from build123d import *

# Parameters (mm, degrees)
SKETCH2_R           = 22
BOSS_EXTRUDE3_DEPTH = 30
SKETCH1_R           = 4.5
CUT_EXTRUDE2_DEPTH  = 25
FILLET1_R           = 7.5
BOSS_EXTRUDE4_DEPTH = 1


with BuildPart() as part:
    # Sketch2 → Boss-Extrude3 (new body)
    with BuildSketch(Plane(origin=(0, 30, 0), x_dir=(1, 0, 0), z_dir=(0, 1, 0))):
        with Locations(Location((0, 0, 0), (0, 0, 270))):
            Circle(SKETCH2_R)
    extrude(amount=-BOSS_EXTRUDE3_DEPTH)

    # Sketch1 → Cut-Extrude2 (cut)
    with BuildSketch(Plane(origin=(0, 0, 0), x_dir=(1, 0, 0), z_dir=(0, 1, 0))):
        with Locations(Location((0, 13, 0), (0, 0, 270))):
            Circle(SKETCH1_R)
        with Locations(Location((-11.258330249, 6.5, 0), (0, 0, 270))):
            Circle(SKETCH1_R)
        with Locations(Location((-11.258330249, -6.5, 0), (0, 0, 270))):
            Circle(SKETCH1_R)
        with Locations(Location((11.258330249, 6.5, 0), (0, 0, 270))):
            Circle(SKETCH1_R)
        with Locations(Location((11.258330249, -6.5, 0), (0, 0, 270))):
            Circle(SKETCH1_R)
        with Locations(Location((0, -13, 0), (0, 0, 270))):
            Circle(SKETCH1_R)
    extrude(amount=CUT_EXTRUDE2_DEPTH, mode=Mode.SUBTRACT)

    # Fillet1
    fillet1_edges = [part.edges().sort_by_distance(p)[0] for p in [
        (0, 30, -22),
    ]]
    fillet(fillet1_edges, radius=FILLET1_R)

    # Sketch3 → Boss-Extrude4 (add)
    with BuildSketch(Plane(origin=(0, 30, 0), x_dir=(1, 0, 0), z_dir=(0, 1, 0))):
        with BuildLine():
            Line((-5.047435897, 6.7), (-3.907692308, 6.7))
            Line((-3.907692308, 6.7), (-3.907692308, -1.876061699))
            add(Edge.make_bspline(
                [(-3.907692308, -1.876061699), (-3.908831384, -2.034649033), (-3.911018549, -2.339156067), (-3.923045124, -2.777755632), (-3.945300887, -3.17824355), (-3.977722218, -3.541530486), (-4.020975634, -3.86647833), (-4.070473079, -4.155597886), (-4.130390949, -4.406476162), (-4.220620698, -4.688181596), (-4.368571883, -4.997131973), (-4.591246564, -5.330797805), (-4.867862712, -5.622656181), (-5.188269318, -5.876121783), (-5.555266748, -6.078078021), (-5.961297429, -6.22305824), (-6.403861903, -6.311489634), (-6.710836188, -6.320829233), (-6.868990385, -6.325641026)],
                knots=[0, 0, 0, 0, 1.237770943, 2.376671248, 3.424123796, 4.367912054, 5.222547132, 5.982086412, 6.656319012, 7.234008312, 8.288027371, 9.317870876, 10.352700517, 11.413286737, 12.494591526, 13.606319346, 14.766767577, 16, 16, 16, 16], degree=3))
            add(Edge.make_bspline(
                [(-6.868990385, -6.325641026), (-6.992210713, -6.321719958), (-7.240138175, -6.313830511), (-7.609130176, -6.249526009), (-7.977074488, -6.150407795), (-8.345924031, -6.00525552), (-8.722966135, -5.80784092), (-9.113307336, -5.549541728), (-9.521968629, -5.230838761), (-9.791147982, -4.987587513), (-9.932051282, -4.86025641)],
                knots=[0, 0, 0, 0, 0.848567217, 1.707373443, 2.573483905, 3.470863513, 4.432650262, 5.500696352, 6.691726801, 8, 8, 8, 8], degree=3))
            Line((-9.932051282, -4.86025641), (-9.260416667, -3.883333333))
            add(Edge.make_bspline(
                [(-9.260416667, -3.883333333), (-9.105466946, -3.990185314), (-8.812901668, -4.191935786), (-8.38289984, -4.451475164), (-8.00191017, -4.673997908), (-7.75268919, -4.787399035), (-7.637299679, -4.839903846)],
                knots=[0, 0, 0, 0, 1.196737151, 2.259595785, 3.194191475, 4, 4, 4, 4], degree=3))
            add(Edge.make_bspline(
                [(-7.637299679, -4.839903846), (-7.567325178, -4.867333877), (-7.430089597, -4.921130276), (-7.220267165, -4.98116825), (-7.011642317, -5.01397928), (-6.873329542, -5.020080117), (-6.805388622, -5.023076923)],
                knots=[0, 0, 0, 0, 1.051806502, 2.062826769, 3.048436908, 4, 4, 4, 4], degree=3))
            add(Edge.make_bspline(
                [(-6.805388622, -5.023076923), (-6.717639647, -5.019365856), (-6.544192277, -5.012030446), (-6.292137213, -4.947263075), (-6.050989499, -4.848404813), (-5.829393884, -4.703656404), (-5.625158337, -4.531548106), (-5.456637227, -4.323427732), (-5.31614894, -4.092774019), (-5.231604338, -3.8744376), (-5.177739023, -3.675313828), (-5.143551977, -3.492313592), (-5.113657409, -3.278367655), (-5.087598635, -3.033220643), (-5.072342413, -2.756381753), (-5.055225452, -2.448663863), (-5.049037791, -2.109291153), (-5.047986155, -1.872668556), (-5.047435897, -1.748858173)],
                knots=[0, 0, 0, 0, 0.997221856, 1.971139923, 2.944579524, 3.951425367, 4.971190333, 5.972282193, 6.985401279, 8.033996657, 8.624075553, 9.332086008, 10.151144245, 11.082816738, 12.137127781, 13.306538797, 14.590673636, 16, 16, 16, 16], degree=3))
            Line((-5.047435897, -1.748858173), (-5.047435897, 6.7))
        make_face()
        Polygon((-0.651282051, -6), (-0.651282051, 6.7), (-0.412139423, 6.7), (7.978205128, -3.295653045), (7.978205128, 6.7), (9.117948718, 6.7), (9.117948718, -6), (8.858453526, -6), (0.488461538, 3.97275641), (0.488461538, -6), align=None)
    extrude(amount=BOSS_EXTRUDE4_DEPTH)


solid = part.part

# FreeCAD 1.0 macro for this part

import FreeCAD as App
import Part
import Sketcher
from FreeCAD import Vector
Q = App.Units.Quantity


def edges_at(feature, points):
    """Names of the edges that pass closest to the given points."""
    edges = feature.Shape.Edges
    near = lambda p: min(range(len(edges)), key=lambda i: edges[i].distToShape(Part.Vertex(*p))[0])
    return sorted({f"Edge{near(p) + 1}" for p in points})


def add_polygon(sketch, points):
    """Adds a closed chain of lines whose ends are joined by coincident constraints."""
    first, n = sketch.GeometryCount, len(points)
    for a, b in zip(points, points[1:] + points[:1]):
        sketch.addGeometry(Part.LineSegment(App.Vector(*a, 0), App.Vector(*b, 0)), False)
    for i in range(n):
        sketch.addConstraint(Sketcher.Constraint("Coincident", first + i, 2, first + (i + 1) % n, 1))

doc = App.newDocument("Part")
body = doc.addObject("PartDesign::Body", "Body")

# Sketch on XZ plane
sketch1 = doc.addObject("Sketcher::SketchObject", "Sketch")
body.addObject(sketch1)
sketch1.AttachmentSupport = (doc.XZ_Plane, [""])
sketch1.MapMode = "FlatFace"
sketch1.AttachmentOffset = App.Placement(Vector(0, 0, -30), App.Rotation())
sketch1.addGeometry(Part.Circle(Vector(0, 0, 0), Vector(0, 0, 1), 22), False)
sketch1.addConstraint([
    Sketcher.Constraint("Coincident", 0, 3, -1, 1),
    Sketcher.Constraint("Diameter", 0, Q("44 mm")),
])
pad1 = doc.addObject("PartDesign::Pad", "Pad")
body.addObject(pad1)
pad1.Profile = sketch1
pad1.Length = 30

# Sketch on XZ plane
sketch2 = doc.addObject("Sketcher::SketchObject", "Sketch001")
body.addObject(sketch2)
sketch2.AttachmentSupport = (doc.XZ_Plane, [""])
sketch2.MapMode = "FlatFace"
sketch2.addGeometry([
    Part.Circle(Vector(0, -13, 0), Vector(0, 0, 1), 4.5),  # 0
    Part.Circle(Vector(-11.25833, -6.5, 0), Vector(0, 0, 1), 4.5),  # 1
    Part.Circle(Vector(-11.25833, 6.5, 0), Vector(0, 0, 1), 4.5),  # 2
    Part.Circle(Vector(11.25833, -6.5, 0), Vector(0, 0, 1), 4.5),  # 3
    Part.Circle(Vector(11.25833, 6.5, 0), Vector(0, 0, 1), 4.5),  # 4
    Part.Circle(Vector(0, 13, 0), Vector(0, 0, 1), 4.5),  # 5
], False)
sketch2.addConstraint([
    Sketcher.Constraint("Equal", 0, 1),
    Sketcher.Constraint("Equal", 1, 2),
    Sketcher.Constraint("Equal", 2, 3),
    Sketcher.Constraint("Equal", 3, 4),
    Sketcher.Constraint("Equal", 4, 5),
    Sketcher.Constraint("Symmetric", 2, 3, 3, 3, -1, 1),
    Sketcher.Constraint("Symmetric", 1, 3, 4, 3, -1, 1),
    Sketcher.Constraint("Symmetric", 0, 3, 5, 3, -1, 1),
    Sketcher.Constraint("Symmetric", 1, 3, 3, 3, -2),
    Sketcher.Constraint("PointOnObject", 0, 3, -2),
    Sketcher.Constraint("Diameter", 0, Q("9 mm")),
    Sketcher.Constraint("DistanceY", 0, 3, -1, 1, Q("13 mm")),
    Sketcher.Constraint("DistanceY", 1, 3, 2, 3, Q("13 mm")),
    Sketcher.Constraint("DistanceX", 1, 3, -1, 1, Q("11.25833 mm")),
])
pocket1 = doc.addObject("PartDesign::Pocket", "Pocket")
body.addObject(pocket1)
pocket1.Profile = sketch2
pocket1.Length = 25
doc.recompute()

fillet = doc.addObject("PartDesign::Fillet", "Fillet")
body.addObject(fillet)
fillet.Base = (pocket1, edges_at(pocket1, [(0, 30, -22)]))
fillet.Radius = 7.5

# Sketch on XZ plane
sketch3 = doc.addObject("Sketcher::SketchObject", "Sketch002")
body.addObject(sketch3)
sketch3.AttachmentSupport = (doc.XZ_Plane, [""])
sketch3.MapMode = "FlatFace"
sketch3.AttachmentOffset = App.Placement(Vector(0, 0, -30), App.Rotation())
sketch3.addGeometry(Part.LineSegment(Vector(-3.907692, -6.7, 0), Vector(-5.047436, -6.7, 0)), False)  # 0
sketch3.addGeometry(Part.LineSegment(Vector(-5.047436, -6.7, 0), Vector(-5.047436, 1.748858, 0)), False)  # 1
sketch3.addGeometry(Part.BSplineCurve([Vector(-6.805389, 5.023077, 0), Vector(-6.71764, 5.019366, 0), Vector(-6.544192, 5.01203, 0), Vector(-6.292137, 4.947263, 0), Vector(-6.050989, 4.848405, 0), Vector(-5.829394, 4.703656, 0), Vector(-5.625158, 4.531548, 0), Vector(-5.456637, 4.323428, 0), Vector(-5.316149, 4.092774, 0), Vector(-5.231604, 3.874438, 0), Vector(-5.177739, 3.675314, 0), Vector(-5.143552, 3.492314, 0), Vector(-5.113657, 3.278368, 0), Vector(-5.087599, 3.033221, 0), Vector(-5.072342, 2.756382, 0), Vector(-5.055225, 2.448664, 0), Vector(-5.049038, 2.109291, 0), Vector(-5.047986, 1.872669, 0), Vector(-5.047436, 1.748858, 0)], [4, 1, 1, 1, 1, 1, 1, 1, 1, 1, 1, 1, 1, 1, 1, 1, 4], [0, 0.997221856, 1.971139923, 2.944579524, 3.951425367, 4.971190333, 5.972282193, 6.985401279, 8.033996657, 8.624075553, 9.332086008, 10.151144245, 11.082816738, 12.137127781, 13.306538797, 14.590673636, 16], False, 3, [1, 1, 1, 1, 1, 1, 1, 1, 1, 1, 1, 1, 1, 1, 1, 1, 1, 1, 1], False), False)  # 2
sketch3.addGeometry(Part.BSplineCurve([Vector(-7.6373, 4.839904, 0), Vector(-7.567325, 4.867334, 0), Vector(-7.43009, 4.92113, 0), Vector(-7.220267, 4.981168, 0), Vector(-7.011642, 5.013979, 0), Vector(-6.87333, 5.02008, 0), Vector(-6.805389, 5.023077, 0)], [4, 1, 1, 1, 4], [0, 1.051806502, 2.062826769, 3.048436908, 4], False, 3, [1, 1, 1, 1, 1, 1, 1], False), False)  # 3
sketch3.addGeometry(Part.BSplineCurve([Vector(-9.260417, 3.883333, 0), Vector(-9.105467, 3.990185, 0), Vector(-8.812902, 4.191936, 0), Vector(-8.3829, 4.451475, 0), Vector(-8.00191, 4.673998, 0), Vector(-7.752689, 4.787399, 0), Vector(-7.6373, 4.839904, 0)], [4, 1, 1, 1, 4], [0, 1.196737151, 2.259595785, 3.194191475, 4], False, 3, [1, 1, 1, 1, 1, 1, 1], False), False)  # 4
sketch3.addGeometry(Part.LineSegment(Vector(-9.260417, 3.883333, 0), Vector(-9.932051, 4.860256, 0)), False)  # 5
sketch3.addGeometry(Part.BSplineCurve([Vector(-6.86899, 6.325641, 0), Vector(-6.992211, 6.32172, 0), Vector(-7.240138, 6.313831, 0), Vector(-7.60913, 6.249526, 0), Vector(-7.977074, 6.150408, 0), Vector(-8.345924, 6.005256, 0), Vector(-8.722966, 5.807841, 0), Vector(-9.113307, 5.549542, 0), Vector(-9.521969, 5.230839, 0), Vector(-9.791148, 4.987588, 0), Vector(-9.932051, 4.860256, 0)], [4, 1, 1, 1, 1, 1, 1, 1, 4], [0, 0.848567217, 1.707373443, 2.573483905, 3.470863513, 4.432650262, 5.500696352, 6.691726801, 8], False, 3, [1, 1, 1, 1, 1, 1, 1, 1, 1, 1, 1], False), False)  # 6
sketch3.addGeometry(Part.BSplineCurve([Vector(-3.907692, 1.876062, 0), Vector(-3.908831, 2.034649, 0), Vector(-3.911019, 2.339156, 0), Vector(-3.923045, 2.777756, 0), Vector(-3.945301, 3.178244, 0), Vector(-3.977722, 3.54153, 0), Vector(-4.020976, 3.866478, 0), Vector(-4.070473, 4.155598, 0), Vector(-4.130391, 4.406476, 0), Vector(-4.220621, 4.688182, 0), Vector(-4.368572, 4.997132, 0), Vector(-4.591247, 5.330798, 0), Vector(-4.867863, 5.622656, 0), Vector(-5.188269, 5.876122, 0), Vector(-5.555267, 6.078078, 0), Vector(-5.961297, 6.223058, 0), Vector(-6.403862, 6.31149, 0), Vector(-6.710836, 6.320829, 0), Vector(-6.86899, 6.325641, 0)], [4, 1, 1, 1, 1, 1, 1, 1, 1, 1, 1, 1, 1, 1, 1, 1, 4], [0, 1.237770943, 2.376671248, 3.424123796, 4.367912054, 5.222547132, 5.982086412, 6.656319012, 7.234008312, 8.288027371, 9.317870876, 10.352700517, 11.413286737, 12.494591526, 13.606319346, 14.766767577, 16], False, 3, [1, 1, 1, 1, 1, 1, 1, 1, 1, 1, 1, 1, 1, 1, 1, 1, 1, 1, 1], False), False)  # 7
sketch3.addGeometry(Part.LineSegment(Vector(-3.907692, 1.876062, 0), Vector(-3.907692, -6.7, 0)), False)  # 8
add_polygon(sketch3, [(-0.651282, -6.7), (-0.651282, 6), (0.488462, 6), (0.488462, -3.972756), (8.858454, 6), (9.117949, 6), (9.117949, -6.7), (7.978205, -6.7), (7.978205, 3.295653), (-0.412139, -6.7)])  # lines 9-18
sketch3.addConstraint([
    Sketcher.Constraint("Block", 2),
    Sketcher.Constraint("Block", 3),
    Sketcher.Constraint("Block", 4),
    Sketcher.Constraint("Block", 6),
    Sketcher.Constraint("Block", 7),
    Sketcher.Constraint("Coincident", 0, 2, 1, 1),
    Sketcher.Constraint("Coincident", 1, 2, 2, 2),
    Sketcher.Constraint("Coincident", 4, 1, 5, 1),
    Sketcher.Constraint("Coincident", 5, 2, 6, 2),
    Sketcher.Constraint("Coincident", 7, 1, 8, 1),
    Sketcher.Constraint("Coincident", 8, 2, 0, 1),
    Sketcher.Constraint("Horizontal", 0),
    Sketcher.Constraint("Vertical", 1),
    Sketcher.Constraint("Vertical", 8),
    Sketcher.Constraint("Vertical", 9),
    Sketcher.Constraint("Horizontal", 10),
    Sketcher.Constraint("Vertical", 11),
    Sketcher.Constraint("Horizontal", 13),
    Sketcher.Constraint("Vertical", 14),
    Sketcher.Constraint("Horizontal", 15),
    Sketcher.Constraint("Vertical", 16),
    Sketcher.Constraint("Horizontal", 18),
    Sketcher.Constraint("Horizontal", 10, 2, 12, 2),
    Sketcher.Constraint("Horizontal", 8, 2, 14, 2),
    Sketcher.Constraint("Horizontal", 15, 2, 17, 2),
    Sketcher.Constraint("Equal", 0, 10),
    Sketcher.Constraint("Equal", 10, 15),
    Sketcher.Constraint("DistanceY", 9, 1, 9, 2, Q("12.7 mm")),
    Sketcher.Constraint("DistanceY", -1, 1, 9, 2, Q("6 mm")),
    Sketcher.Constraint("Distance", 12, Q("13.019702 mm")),
    Sketcher.Constraint("DistanceX", 17, 2, 11, 2, Q("0.900601 mm")),
    Sketcher.Constraint("DistanceX", 13, 1, 13, 2, Q("0.259495 mm")),
    Sketcher.Constraint("DistanceY", 11, 2, 11, 1, Q("9.972756 mm")),
    Sketcher.Constraint("DistanceY", 16, 1, 16, 2, Q("9.995653 mm")),
    Sketcher.Constraint("DistanceX", -1, 1, 10, 2, Q("0.488462 mm")),
])
pad2 = doc.addObject("PartDesign::Pad", "Pad001")
body.addObject(pad2)
pad2.Profile = sketch3
pad2.Length = 1
pad2.Reversed = True

doc.recompute()
